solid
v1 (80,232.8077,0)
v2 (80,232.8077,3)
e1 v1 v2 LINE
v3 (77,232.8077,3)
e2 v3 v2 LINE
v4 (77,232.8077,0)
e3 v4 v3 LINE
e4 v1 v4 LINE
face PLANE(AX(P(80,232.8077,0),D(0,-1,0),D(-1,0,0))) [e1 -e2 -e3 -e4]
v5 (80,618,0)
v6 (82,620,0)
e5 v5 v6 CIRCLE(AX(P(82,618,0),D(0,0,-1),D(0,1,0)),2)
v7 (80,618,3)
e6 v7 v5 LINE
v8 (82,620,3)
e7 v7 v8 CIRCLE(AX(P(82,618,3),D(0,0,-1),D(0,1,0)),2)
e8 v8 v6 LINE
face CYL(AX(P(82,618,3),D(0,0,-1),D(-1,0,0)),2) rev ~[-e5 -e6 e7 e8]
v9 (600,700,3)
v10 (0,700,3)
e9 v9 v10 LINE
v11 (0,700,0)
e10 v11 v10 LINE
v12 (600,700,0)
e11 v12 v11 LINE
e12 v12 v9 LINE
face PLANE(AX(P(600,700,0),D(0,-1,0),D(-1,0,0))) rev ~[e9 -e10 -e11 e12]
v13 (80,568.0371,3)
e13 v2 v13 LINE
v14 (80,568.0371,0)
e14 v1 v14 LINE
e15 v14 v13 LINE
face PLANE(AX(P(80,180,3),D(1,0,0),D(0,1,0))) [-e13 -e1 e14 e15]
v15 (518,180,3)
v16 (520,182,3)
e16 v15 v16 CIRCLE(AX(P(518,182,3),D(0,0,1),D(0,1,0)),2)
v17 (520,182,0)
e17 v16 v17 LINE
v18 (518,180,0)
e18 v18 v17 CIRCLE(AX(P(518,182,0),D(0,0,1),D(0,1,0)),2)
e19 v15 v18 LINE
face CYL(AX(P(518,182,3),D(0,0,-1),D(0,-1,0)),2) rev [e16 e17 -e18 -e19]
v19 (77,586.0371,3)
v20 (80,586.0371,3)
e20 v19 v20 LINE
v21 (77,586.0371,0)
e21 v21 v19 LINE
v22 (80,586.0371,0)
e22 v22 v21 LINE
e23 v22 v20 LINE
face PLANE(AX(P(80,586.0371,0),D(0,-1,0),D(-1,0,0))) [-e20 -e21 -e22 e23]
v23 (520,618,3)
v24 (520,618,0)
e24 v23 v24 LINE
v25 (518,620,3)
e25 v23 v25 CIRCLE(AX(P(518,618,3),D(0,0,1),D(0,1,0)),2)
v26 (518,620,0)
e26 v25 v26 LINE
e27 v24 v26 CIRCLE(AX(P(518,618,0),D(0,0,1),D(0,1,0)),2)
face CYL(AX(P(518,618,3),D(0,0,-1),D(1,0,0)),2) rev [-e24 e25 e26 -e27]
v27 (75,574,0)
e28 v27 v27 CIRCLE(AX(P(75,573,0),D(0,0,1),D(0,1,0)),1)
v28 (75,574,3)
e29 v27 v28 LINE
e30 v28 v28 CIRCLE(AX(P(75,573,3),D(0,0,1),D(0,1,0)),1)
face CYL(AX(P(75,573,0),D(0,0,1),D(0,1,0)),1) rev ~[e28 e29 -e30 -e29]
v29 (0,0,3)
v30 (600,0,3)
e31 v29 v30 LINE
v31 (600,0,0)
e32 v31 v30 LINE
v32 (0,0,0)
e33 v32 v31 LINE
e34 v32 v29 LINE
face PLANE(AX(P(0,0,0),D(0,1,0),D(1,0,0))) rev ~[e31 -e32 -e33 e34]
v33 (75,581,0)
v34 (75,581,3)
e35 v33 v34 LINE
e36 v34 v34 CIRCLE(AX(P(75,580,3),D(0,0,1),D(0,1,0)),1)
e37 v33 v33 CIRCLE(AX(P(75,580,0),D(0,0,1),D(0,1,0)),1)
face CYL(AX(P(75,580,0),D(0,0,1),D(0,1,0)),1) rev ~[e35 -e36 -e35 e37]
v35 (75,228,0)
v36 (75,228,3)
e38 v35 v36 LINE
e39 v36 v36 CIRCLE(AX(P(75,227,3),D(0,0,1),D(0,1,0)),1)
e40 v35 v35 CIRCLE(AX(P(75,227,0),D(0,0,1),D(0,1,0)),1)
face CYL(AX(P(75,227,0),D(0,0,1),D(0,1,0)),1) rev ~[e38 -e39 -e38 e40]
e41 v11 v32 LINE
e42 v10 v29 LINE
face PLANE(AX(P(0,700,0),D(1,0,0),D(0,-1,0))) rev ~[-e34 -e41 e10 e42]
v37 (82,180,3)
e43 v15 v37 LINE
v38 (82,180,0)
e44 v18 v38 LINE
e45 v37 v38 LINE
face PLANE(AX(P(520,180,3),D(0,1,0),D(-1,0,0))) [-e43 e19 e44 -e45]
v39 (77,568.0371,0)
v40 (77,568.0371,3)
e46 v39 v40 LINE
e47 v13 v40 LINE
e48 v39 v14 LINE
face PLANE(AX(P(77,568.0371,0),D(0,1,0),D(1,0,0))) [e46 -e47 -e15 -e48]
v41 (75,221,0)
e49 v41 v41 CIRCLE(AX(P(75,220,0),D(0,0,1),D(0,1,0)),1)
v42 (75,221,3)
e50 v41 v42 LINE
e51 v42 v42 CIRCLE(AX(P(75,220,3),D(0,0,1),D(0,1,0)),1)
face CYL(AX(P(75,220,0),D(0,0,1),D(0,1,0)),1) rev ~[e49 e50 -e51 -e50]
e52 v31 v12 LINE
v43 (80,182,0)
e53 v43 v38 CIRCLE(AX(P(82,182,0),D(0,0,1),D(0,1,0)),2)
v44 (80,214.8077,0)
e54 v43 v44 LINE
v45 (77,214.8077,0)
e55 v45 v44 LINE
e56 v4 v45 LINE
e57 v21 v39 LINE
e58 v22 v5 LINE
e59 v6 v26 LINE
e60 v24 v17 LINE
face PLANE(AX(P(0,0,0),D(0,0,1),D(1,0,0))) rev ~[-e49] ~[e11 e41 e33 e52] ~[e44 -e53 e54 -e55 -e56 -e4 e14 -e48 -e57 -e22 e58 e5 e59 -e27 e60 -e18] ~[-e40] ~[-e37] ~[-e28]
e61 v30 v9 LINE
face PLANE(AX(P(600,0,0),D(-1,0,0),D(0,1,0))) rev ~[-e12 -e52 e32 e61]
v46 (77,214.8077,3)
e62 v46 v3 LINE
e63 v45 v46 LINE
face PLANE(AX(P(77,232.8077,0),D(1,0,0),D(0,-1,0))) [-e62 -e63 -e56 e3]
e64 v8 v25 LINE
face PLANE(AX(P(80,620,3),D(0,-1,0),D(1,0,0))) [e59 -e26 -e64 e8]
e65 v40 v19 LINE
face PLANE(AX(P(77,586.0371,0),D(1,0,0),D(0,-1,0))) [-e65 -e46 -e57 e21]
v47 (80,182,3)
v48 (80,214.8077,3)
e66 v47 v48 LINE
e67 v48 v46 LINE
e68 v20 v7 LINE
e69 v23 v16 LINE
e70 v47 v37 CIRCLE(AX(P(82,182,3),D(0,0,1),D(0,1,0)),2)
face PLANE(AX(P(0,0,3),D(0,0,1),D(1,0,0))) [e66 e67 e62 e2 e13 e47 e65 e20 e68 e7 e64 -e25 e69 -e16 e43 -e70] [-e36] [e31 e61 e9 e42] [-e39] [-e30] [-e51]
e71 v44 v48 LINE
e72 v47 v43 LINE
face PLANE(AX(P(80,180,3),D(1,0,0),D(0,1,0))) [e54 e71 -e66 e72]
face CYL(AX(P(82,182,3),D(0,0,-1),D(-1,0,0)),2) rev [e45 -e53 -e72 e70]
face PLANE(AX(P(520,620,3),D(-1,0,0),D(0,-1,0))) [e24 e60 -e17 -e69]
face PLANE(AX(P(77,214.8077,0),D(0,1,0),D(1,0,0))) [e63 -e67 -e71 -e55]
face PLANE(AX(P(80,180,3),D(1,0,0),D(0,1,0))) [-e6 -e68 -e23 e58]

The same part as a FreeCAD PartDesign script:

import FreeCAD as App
import Part
import Sketcher

V = App.Vector
Q = App.Units.Quantity


def edges_at(feature, points):
    """Names of the edges that pass closest to the given points."""
    edges = feature.Shape.Edges
    near = lambda p: min(range(len(edges)), key=lambda i: edges[i].distToShape(Part.Vertex(*p))[0])
    return sorted({f"Edge{near(p) + 1}" for p in points})


def add_polygon(sketch, points):
    """Adds a closed chain of lines whose ends are joined by coincident constraints."""
    first, n = sketch.GeometryCount, len(points)
    for a, b in zip(points, points[1:] + points[:1]):
        sketch.addGeometry(Part.LineSegment(App.Vector(*a, 0), App.Vector(*b, 0)), False)
    for i in range(n):
        sketch.addConstraint(Sketcher.Constraint("Coincident", first + i, 2, first + (i + 1) % n, 1))

doc = App.newDocument("Part")
body = doc.addObject("PartDesign::Body", "Body")

sketch1 = body.newObject("Sketcher::SketchObject", "Sketch")
sketch1.AttachmentSupport = (doc.getObject("XY_Plane"), [""])
sketch1.MapMode = "FlatFace"
add_polygon(sketch1, [(0, 700), (0, 0), (600, 0), (600, 700)])
sketch1.addConstraint(Sketcher.Constraint("Vertical", 0))
sketch1.addConstraint(Sketcher.Constraint("Horizontal", 1))
sketch1.addConstraint(Sketcher.Constraint("Vertical", 2))
sketch1.addConstraint(Sketcher.Constraint("Horizontal", 3))
sketch1.addConstraint(Sketcher.Constraint("Coincident", 0, 2, -1, 1))
sketch1.addConstraint(Sketcher.Constraint("DistanceX", 1, 1, 1, 2, Q("600 mm")))
sketch1.addConstraint(Sketcher.Constraint("DistanceY", 0, 2, 0, 1, Q("700 mm")))
pad1 = body.newObject("PartDesign::Pad", "Pad")
pad1.Profile = sketch1
pad1.Length = 3

sketch2 = body.newObject("Sketcher::SketchObject", "Sketch001")
sketch2.AttachmentSupport = (doc.getObject("XY_Plane"), [""])
sketch2.MapMode = "FlatFace"
sketch2.AttachmentOffset = App.Placement(V(0, 0, 3), App.Rotation())
add_polygon(sketch2, [(520, 620), (80, 620), (80, 180), (520, 180)])
sketch2.addConstraint(Sketcher.Constraint("Horizontal", 0))
sketch2.addConstraint(Sketcher.Constraint("Vertical", 1))
sketch2.addConstraint(Sketcher.Constraint("Horizontal", 2))
sketch2.addConstraint(Sketcher.Constraint("Vertical", 3))
sketch2.addConstraint(Sketcher.Constraint("Equal", 2, 1))
sketch2.addConstraint(Sketcher.Constraint("DistanceX", -1, 1, 0, 2, Q("80 mm")))
sketch2.addConstraint(Sketcher.Constraint("DistanceY", -1, 1, 1, 2, Q("180 mm")))
sketch2.addConstraint(Sketcher.Constraint("DistanceX", 0, 2, 0, 1, Q("440 mm")))
pocket1 = body.newObject("PartDesign::Pocket", "Pocket")
pocket1.Profile = sketch2
pocket1.Length = 10
doc.recompute()

fillet = body.newObject("PartDesign::Fillet", "Fillet")
fillet.Base = (pocket1, edges_at(pocket1, [
    (80, 620, 1.5),
    (520, 620, 1.5),
    (520, 180, 1.5),
    (80, 180, 1.5),
]))
fillet.Radius = 2

sketch3 = body.newObject("Sketcher::SketchObject", "Sketch002")
sketch3.AttachmentSupport = (doc.getObject("XY_Plane"), [""])
sketch3.MapMode = "FlatFace"
sketch3.addGeometry(Part.Circle(V(75, 220, 0), V(0, 0, 1), 1), False)
sketch3.addGeometry(Part.Circle(V(75, 227, 0), V(0, 0, 1), 1), False)
sketch3.addGeometry(Part.Circle(V(75, 580, 0), V(0, 0, 1), 1), False)
sketch3.addGeometry(Part.Circle(V(75, 573, 0), V(0, 0, 1), 1), False)
sketch3.addConstraint(Sketcher.Constraint("Equal", 0, 1))
sketch3.addConstraint(Sketcher.Constraint("Equal", 1, 2))
sketch3.addConstraint(Sketcher.Constraint("Equal", 2, 3))
sketch3.addConstraint(Sketcher.Constraint("Vertical", 0, 3, 1, 3))
sketch3.addConstraint(Sketcher.Constraint("Vertical", 1, 3, 2, 3))
sketch3.addConstraint(Sketcher.Constraint("Vertical", 2, 3, 3, 3))
sketch3.addConstraint(Sketcher.Constraint("Diameter", 0, Q("2 mm")))
sketch3.addConstraint(Sketcher.Constraint("DistanceX", -1, 1, 0, 3, Q("75 mm")))
sketch3.addConstraint(Sketcher.Constraint("DistanceY", -1, 1, 0, 3, Q("220 mm")))
sketch3.addConstraint(Sketcher.Constraint("DistanceY", -1, 1, 1, 3, Q("227 mm")))
sketch3.addConstraint(Sketcher.Constraint("DistanceY", -1, 1, 2, 3, Q("580 mm")))
sketch3.addConstraint(Sketcher.Constraint("DistanceY", -1, 1, 3, 3, Q("573 mm")))
doc.recompute()
hole = body.newObject("PartDesign::Hole", "Hole")
hole.Profile = sketch3
hole.ThreadType = "None"
hole.Diameter = 2
hole.DepthType = "ThroughAll"
hole.Reversed = True

sketch4 = body.newObject("Sketcher::SketchObject", "Sketch003")
sketch4.AttachmentSupport = (doc.getObject("XY_Plane"), [""])
sketch4.MapMode = "FlatFace"
add_polygon(sketch4, [(77, 586.0371), (80, 586.0371), (80, 568.0371), (77, 568.0371)])
add_polygon(sketch4, [(77, 232.8077), (80, 232.8077), (80, 214.8077), (77, 214.8077)])
sketch4.addConstraint(Sketcher.Constraint("Horizontal", 0))
sketch4.addConstraint(Sketcher.Constraint("Vertical", 1))
sketch4.addConstraint(Sketcher.Constraint("Horizontal", 2))
sketch4.addConstraint(Sketcher.Constraint("Vertical", 3))
sketch4.addConstraint(Sketcher.Constraint("Horizontal", 4))
sketch4.addConstraint(Sketcher.Constraint("Vertical", 5))
sketch4.addConstraint(Sketcher.Constraint("Horizontal", 6))
sketch4.addConstraint(Sketcher.Constraint("Vertical", 7))
sketch4.addConstraint(Sketcher.Constraint("Vertical", 1, 2, 4, 2))
sketch4.addConstraint(Sketcher.Constraint("Vertical", 3, 2, 6, 2))
sketch4.addConstraint(Sketcher.Constraint("Equal", 3, 5))
sketch4.addConstraint(Sketcher.Constraint("DistanceX", 0, 1, 0, 2, Q("3 mm")))
sketch4.addConstraint(Sketcher.Constraint("DistanceY", 1, 2, 1, 1, Q("18 mm")))
sketch4.addConstraint(Sketcher.Constraint("DistanceX", -1, 1, 0, 2, Q("80 mm")))
sketch4.addConstraint(Sketcher.Constraint("DistanceY", -1, 1, 0, 2, Q("586.037 mm")))
sketch4.addConstraint(Sketcher.Constraint("DistanceY", -1, 1, 4, 2, Q("232.8077 mm")))
pocket2 = body.newObject("PartDesign::Pocket", "Pocket001")
pocket2.Profile = sketch4
pocket2.Length = 10
pocket2.Reversed = True

doc.recompute()
